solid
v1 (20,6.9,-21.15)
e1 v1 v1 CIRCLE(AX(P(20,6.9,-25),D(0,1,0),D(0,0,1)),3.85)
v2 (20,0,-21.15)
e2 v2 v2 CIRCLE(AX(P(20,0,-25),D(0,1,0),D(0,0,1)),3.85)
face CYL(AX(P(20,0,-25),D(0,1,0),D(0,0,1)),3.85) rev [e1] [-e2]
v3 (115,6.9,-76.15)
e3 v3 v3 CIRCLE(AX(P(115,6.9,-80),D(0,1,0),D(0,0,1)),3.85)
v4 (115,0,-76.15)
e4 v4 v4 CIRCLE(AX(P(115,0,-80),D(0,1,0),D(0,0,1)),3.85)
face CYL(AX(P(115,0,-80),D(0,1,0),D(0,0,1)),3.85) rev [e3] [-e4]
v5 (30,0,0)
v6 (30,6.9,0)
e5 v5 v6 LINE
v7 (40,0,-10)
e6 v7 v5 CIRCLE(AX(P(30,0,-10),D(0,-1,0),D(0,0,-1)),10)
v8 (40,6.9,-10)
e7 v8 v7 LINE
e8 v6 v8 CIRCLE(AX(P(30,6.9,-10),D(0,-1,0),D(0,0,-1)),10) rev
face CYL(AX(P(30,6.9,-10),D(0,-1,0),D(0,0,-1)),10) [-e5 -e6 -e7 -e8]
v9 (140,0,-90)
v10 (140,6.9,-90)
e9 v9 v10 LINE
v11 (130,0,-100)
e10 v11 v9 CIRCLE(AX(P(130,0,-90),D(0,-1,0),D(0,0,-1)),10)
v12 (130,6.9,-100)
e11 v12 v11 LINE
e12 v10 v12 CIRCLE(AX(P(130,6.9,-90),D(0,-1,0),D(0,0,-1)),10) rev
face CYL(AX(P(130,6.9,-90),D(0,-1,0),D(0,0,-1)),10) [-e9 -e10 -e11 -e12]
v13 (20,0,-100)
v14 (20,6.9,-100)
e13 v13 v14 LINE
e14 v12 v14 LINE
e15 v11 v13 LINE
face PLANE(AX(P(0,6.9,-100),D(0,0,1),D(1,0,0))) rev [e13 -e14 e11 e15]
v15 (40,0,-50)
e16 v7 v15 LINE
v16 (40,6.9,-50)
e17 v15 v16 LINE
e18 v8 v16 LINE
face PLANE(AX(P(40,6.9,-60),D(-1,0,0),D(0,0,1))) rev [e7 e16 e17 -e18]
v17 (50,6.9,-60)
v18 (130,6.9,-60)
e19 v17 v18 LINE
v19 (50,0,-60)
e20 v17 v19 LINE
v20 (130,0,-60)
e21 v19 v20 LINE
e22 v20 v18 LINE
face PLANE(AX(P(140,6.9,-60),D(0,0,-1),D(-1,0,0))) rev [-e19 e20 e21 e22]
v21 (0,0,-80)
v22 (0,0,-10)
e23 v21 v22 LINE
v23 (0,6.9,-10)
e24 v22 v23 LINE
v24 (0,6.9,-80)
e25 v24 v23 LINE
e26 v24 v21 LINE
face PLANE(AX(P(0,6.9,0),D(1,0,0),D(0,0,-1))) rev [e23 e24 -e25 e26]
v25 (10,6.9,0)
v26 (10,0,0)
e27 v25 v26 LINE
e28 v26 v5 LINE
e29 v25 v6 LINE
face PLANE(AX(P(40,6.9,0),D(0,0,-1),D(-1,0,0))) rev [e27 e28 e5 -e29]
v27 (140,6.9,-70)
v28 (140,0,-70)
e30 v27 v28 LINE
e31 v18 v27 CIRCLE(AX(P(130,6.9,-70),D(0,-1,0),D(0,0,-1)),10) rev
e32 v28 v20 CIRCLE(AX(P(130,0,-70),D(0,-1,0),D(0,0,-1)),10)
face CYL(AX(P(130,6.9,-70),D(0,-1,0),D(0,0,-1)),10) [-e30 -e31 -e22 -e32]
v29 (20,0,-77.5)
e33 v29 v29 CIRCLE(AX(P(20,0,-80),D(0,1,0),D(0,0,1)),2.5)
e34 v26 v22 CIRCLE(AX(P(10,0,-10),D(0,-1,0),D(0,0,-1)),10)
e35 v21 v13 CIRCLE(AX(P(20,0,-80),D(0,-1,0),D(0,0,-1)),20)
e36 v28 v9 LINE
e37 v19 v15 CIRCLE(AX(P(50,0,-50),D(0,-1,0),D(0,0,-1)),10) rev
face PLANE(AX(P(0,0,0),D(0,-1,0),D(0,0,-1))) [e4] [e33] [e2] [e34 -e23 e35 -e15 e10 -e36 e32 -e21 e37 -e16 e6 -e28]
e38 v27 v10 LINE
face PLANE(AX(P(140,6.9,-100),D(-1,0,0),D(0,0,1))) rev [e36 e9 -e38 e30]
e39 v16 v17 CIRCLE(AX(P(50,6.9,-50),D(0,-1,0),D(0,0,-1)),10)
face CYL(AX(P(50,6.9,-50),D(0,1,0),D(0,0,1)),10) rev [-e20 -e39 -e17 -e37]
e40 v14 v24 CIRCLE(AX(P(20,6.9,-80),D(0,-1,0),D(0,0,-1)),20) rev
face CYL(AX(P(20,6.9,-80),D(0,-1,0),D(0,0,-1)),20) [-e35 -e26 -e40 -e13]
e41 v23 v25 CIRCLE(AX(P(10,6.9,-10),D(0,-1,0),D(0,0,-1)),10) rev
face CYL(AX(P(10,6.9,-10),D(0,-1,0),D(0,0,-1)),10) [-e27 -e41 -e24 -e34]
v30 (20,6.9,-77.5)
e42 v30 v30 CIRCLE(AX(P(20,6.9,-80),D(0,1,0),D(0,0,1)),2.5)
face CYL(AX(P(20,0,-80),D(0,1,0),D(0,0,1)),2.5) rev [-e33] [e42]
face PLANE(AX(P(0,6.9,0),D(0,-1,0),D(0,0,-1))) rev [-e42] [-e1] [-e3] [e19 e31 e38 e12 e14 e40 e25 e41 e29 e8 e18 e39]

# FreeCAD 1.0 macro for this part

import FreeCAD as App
import Part
import Sketcher
Q = App.Units.Quantity


def edges_at(feature, points):
    """Names of the edges that pass closest to the given points."""
    edges = feature.Shape.Edges
    near = lambda p: min(range(len(edges)), key=lambda i: edges[i].distToShape(Part.Vertex(*p))[0])
    return sorted({f"Edge{near(p) + 1}" for p in points})


def add_polygon(sketch, points):
    """Adds a closed chain of lines whose ends are joined by coincident constraints."""
    first, n = sketch.GeometryCount, len(points)
    for a, b in zip(points, points[1:] + points[:1]):
        sketch.addGeometry(Part.LineSegment(App.Vector(*a, 0), App.Vector(*b, 0)), False)
    for i in range(n):
        sketch.addConstraint(Sketcher.Constraint("Coincident", first + i, 2, first + (i + 1) % n, 1))

doc = App.newDocument("Part")
body = doc.addObject("PartDesign::Body", "Body")

# Sketch on XZ plane
sketch1 = body.newObject("Sketcher::SketchObject", "Sketch")
sketch1.AttachmentSupport = (doc.getObject("XZ_Plane"), [""])
sketch1.MapMode = "FlatFace"
add_polygon(sketch1, [(0, -100), (0, 0), (40, 0), (40, -60), (140, -60), (140, -100)])  # lines 0-5
sketch1.addConstraint(Sketcher.Constraint("Vertical", 0))
sketch1.addConstraint(Sketcher.Constraint("Horizontal", 1))
sketch1.addConstraint(Sketcher.Constraint("Vertical", 2))
sketch1.addConstraint(Sketcher.Constraint("Horizontal", 3))
sketch1.addConstraint(Sketcher.Constraint("Vertical", 4))
sketch1.addConstraint(Sketcher.Constraint("Horizontal", 5))
sketch1.addConstraint(Sketcher.Constraint("Coincident", 0, 2, -1, 1))
sketch1.addConstraint(Sketcher.Constraint("Equal", 3, 0))
sketch1.addConstraint(Sketcher.Constraint("Equal", 1, 4))
sketch1.addConstraint(Sketcher.Constraint("DistanceX", 1, 1, 1, 2, Q("40 mm")))
sketch1.addConstraint(Sketcher.Constraint("DistanceX", 3, 1, 3, 2, Q("100 mm")))
pad1 = body.newObject("PartDesign::Pad", "Pad")
pad1.Profile = sketch1
pad1.Length = 6.9
pad1.Reversed = True
doc.recompute()

fillet = body.newObject("PartDesign::Fillet", "Fillet")
fillet.Base = (pad1, edges_at(pad1, [
    (0, 3.45, 0),
    (140, 3.45, -100),
    (140, 3.45, -60),
    (40, 3.45, -60),
    (40, 3.45, 0),
]))
fillet.Radius = 10
doc.recompute()

fillet2 = body.newObject("PartDesign::Fillet", "Fillet001")
fillet2.Base = (fillet, edges_at(fillet, [(0, 3.45, -100)]))
fillet2.Radius = 20

# Sketch on XZ plane
sketch2 = body.newObject("Sketcher::SketchObject", "Sketch001")
sketch2.AttachmentSupport = (doc.getObject("XZ_Plane"), [""])
sketch2.MapMode = "FlatFace"
sketch2.AttachmentOffset = App.Placement(App.Vector(0, 0, -6.9), App.Rotation())
sketch2.addGeometry(Part.Circle(App.Vector(20, -80, 0), App.Vector(0, 0, 1), 2.5), False)
sketch2.addConstraint(Sketcher.Constraint("Diameter", 0, Q("5 mm")))
sketch2.addConstraint(Sketcher.Constraint("DistanceX", -1, 1, 0, 3, Q("20 mm")))
sketch2.addConstraint(Sketcher.Constraint("DistanceY", 0, 3, -1, 1, Q("80 mm")))
pocket1 = body.newObject("PartDesign::Pocket", "Pocket")
pocket1.Profile = sketch2
pocket1.Type = "ThroughAll"
pocket1.Reversed = True

# Sketch on XZ plane
sketch3 = body.newObject("Sketcher::SketchObject", "Sketch002")
sketch3.AttachmentSupport = (doc.getObject("XZ_Plane"), [""])
sketch3.MapMode = "FlatFace"
sketch3.AttachmentOffset = App.Placement(App.Vector(0, 0, -6.9), App.Rotation())
sketch3.addGeometry(Part.Circle(App.Vector(20, -25, 0), App.Vector(0, 0, 1), 3.9), False)
sketch3.addGeometry(Part.Circle(App.Vector(115, -80, 0), App.Vector(0, 0, 1), 3.9), False)
sketch3.addConstraint(Sketcher.Constraint("Equal", 0, 1))
sketch3.addConstraint(Sketcher.Constraint("Diameter", 0, Q("7.7 mm")))
sketch3.addConstraint(Sketcher.Constraint("DistanceX", -1, 1, 0, 3, Q("20 mm")))
sketch3.addConstraint(Sketcher.Constraint("DistanceY", 0, 3, -1, 1, Q("25 mm")))
sketch3.addConstraint(Sketcher.Constraint("DistanceX", -1, 1, 1, 3, Q("115 mm")))
sketch3.addConstraint(Sketcher.Constraint("DistanceY", 1, 3, -1, 1, Q("80 mm")))
pocket2 = body.newObject("PartDesign::Pocket", "Pocket001")
pocket2.Profile = sketch3
pocket2.Type = "ThroughAll"
pocket2.Reversed = True

doc.recompute()
